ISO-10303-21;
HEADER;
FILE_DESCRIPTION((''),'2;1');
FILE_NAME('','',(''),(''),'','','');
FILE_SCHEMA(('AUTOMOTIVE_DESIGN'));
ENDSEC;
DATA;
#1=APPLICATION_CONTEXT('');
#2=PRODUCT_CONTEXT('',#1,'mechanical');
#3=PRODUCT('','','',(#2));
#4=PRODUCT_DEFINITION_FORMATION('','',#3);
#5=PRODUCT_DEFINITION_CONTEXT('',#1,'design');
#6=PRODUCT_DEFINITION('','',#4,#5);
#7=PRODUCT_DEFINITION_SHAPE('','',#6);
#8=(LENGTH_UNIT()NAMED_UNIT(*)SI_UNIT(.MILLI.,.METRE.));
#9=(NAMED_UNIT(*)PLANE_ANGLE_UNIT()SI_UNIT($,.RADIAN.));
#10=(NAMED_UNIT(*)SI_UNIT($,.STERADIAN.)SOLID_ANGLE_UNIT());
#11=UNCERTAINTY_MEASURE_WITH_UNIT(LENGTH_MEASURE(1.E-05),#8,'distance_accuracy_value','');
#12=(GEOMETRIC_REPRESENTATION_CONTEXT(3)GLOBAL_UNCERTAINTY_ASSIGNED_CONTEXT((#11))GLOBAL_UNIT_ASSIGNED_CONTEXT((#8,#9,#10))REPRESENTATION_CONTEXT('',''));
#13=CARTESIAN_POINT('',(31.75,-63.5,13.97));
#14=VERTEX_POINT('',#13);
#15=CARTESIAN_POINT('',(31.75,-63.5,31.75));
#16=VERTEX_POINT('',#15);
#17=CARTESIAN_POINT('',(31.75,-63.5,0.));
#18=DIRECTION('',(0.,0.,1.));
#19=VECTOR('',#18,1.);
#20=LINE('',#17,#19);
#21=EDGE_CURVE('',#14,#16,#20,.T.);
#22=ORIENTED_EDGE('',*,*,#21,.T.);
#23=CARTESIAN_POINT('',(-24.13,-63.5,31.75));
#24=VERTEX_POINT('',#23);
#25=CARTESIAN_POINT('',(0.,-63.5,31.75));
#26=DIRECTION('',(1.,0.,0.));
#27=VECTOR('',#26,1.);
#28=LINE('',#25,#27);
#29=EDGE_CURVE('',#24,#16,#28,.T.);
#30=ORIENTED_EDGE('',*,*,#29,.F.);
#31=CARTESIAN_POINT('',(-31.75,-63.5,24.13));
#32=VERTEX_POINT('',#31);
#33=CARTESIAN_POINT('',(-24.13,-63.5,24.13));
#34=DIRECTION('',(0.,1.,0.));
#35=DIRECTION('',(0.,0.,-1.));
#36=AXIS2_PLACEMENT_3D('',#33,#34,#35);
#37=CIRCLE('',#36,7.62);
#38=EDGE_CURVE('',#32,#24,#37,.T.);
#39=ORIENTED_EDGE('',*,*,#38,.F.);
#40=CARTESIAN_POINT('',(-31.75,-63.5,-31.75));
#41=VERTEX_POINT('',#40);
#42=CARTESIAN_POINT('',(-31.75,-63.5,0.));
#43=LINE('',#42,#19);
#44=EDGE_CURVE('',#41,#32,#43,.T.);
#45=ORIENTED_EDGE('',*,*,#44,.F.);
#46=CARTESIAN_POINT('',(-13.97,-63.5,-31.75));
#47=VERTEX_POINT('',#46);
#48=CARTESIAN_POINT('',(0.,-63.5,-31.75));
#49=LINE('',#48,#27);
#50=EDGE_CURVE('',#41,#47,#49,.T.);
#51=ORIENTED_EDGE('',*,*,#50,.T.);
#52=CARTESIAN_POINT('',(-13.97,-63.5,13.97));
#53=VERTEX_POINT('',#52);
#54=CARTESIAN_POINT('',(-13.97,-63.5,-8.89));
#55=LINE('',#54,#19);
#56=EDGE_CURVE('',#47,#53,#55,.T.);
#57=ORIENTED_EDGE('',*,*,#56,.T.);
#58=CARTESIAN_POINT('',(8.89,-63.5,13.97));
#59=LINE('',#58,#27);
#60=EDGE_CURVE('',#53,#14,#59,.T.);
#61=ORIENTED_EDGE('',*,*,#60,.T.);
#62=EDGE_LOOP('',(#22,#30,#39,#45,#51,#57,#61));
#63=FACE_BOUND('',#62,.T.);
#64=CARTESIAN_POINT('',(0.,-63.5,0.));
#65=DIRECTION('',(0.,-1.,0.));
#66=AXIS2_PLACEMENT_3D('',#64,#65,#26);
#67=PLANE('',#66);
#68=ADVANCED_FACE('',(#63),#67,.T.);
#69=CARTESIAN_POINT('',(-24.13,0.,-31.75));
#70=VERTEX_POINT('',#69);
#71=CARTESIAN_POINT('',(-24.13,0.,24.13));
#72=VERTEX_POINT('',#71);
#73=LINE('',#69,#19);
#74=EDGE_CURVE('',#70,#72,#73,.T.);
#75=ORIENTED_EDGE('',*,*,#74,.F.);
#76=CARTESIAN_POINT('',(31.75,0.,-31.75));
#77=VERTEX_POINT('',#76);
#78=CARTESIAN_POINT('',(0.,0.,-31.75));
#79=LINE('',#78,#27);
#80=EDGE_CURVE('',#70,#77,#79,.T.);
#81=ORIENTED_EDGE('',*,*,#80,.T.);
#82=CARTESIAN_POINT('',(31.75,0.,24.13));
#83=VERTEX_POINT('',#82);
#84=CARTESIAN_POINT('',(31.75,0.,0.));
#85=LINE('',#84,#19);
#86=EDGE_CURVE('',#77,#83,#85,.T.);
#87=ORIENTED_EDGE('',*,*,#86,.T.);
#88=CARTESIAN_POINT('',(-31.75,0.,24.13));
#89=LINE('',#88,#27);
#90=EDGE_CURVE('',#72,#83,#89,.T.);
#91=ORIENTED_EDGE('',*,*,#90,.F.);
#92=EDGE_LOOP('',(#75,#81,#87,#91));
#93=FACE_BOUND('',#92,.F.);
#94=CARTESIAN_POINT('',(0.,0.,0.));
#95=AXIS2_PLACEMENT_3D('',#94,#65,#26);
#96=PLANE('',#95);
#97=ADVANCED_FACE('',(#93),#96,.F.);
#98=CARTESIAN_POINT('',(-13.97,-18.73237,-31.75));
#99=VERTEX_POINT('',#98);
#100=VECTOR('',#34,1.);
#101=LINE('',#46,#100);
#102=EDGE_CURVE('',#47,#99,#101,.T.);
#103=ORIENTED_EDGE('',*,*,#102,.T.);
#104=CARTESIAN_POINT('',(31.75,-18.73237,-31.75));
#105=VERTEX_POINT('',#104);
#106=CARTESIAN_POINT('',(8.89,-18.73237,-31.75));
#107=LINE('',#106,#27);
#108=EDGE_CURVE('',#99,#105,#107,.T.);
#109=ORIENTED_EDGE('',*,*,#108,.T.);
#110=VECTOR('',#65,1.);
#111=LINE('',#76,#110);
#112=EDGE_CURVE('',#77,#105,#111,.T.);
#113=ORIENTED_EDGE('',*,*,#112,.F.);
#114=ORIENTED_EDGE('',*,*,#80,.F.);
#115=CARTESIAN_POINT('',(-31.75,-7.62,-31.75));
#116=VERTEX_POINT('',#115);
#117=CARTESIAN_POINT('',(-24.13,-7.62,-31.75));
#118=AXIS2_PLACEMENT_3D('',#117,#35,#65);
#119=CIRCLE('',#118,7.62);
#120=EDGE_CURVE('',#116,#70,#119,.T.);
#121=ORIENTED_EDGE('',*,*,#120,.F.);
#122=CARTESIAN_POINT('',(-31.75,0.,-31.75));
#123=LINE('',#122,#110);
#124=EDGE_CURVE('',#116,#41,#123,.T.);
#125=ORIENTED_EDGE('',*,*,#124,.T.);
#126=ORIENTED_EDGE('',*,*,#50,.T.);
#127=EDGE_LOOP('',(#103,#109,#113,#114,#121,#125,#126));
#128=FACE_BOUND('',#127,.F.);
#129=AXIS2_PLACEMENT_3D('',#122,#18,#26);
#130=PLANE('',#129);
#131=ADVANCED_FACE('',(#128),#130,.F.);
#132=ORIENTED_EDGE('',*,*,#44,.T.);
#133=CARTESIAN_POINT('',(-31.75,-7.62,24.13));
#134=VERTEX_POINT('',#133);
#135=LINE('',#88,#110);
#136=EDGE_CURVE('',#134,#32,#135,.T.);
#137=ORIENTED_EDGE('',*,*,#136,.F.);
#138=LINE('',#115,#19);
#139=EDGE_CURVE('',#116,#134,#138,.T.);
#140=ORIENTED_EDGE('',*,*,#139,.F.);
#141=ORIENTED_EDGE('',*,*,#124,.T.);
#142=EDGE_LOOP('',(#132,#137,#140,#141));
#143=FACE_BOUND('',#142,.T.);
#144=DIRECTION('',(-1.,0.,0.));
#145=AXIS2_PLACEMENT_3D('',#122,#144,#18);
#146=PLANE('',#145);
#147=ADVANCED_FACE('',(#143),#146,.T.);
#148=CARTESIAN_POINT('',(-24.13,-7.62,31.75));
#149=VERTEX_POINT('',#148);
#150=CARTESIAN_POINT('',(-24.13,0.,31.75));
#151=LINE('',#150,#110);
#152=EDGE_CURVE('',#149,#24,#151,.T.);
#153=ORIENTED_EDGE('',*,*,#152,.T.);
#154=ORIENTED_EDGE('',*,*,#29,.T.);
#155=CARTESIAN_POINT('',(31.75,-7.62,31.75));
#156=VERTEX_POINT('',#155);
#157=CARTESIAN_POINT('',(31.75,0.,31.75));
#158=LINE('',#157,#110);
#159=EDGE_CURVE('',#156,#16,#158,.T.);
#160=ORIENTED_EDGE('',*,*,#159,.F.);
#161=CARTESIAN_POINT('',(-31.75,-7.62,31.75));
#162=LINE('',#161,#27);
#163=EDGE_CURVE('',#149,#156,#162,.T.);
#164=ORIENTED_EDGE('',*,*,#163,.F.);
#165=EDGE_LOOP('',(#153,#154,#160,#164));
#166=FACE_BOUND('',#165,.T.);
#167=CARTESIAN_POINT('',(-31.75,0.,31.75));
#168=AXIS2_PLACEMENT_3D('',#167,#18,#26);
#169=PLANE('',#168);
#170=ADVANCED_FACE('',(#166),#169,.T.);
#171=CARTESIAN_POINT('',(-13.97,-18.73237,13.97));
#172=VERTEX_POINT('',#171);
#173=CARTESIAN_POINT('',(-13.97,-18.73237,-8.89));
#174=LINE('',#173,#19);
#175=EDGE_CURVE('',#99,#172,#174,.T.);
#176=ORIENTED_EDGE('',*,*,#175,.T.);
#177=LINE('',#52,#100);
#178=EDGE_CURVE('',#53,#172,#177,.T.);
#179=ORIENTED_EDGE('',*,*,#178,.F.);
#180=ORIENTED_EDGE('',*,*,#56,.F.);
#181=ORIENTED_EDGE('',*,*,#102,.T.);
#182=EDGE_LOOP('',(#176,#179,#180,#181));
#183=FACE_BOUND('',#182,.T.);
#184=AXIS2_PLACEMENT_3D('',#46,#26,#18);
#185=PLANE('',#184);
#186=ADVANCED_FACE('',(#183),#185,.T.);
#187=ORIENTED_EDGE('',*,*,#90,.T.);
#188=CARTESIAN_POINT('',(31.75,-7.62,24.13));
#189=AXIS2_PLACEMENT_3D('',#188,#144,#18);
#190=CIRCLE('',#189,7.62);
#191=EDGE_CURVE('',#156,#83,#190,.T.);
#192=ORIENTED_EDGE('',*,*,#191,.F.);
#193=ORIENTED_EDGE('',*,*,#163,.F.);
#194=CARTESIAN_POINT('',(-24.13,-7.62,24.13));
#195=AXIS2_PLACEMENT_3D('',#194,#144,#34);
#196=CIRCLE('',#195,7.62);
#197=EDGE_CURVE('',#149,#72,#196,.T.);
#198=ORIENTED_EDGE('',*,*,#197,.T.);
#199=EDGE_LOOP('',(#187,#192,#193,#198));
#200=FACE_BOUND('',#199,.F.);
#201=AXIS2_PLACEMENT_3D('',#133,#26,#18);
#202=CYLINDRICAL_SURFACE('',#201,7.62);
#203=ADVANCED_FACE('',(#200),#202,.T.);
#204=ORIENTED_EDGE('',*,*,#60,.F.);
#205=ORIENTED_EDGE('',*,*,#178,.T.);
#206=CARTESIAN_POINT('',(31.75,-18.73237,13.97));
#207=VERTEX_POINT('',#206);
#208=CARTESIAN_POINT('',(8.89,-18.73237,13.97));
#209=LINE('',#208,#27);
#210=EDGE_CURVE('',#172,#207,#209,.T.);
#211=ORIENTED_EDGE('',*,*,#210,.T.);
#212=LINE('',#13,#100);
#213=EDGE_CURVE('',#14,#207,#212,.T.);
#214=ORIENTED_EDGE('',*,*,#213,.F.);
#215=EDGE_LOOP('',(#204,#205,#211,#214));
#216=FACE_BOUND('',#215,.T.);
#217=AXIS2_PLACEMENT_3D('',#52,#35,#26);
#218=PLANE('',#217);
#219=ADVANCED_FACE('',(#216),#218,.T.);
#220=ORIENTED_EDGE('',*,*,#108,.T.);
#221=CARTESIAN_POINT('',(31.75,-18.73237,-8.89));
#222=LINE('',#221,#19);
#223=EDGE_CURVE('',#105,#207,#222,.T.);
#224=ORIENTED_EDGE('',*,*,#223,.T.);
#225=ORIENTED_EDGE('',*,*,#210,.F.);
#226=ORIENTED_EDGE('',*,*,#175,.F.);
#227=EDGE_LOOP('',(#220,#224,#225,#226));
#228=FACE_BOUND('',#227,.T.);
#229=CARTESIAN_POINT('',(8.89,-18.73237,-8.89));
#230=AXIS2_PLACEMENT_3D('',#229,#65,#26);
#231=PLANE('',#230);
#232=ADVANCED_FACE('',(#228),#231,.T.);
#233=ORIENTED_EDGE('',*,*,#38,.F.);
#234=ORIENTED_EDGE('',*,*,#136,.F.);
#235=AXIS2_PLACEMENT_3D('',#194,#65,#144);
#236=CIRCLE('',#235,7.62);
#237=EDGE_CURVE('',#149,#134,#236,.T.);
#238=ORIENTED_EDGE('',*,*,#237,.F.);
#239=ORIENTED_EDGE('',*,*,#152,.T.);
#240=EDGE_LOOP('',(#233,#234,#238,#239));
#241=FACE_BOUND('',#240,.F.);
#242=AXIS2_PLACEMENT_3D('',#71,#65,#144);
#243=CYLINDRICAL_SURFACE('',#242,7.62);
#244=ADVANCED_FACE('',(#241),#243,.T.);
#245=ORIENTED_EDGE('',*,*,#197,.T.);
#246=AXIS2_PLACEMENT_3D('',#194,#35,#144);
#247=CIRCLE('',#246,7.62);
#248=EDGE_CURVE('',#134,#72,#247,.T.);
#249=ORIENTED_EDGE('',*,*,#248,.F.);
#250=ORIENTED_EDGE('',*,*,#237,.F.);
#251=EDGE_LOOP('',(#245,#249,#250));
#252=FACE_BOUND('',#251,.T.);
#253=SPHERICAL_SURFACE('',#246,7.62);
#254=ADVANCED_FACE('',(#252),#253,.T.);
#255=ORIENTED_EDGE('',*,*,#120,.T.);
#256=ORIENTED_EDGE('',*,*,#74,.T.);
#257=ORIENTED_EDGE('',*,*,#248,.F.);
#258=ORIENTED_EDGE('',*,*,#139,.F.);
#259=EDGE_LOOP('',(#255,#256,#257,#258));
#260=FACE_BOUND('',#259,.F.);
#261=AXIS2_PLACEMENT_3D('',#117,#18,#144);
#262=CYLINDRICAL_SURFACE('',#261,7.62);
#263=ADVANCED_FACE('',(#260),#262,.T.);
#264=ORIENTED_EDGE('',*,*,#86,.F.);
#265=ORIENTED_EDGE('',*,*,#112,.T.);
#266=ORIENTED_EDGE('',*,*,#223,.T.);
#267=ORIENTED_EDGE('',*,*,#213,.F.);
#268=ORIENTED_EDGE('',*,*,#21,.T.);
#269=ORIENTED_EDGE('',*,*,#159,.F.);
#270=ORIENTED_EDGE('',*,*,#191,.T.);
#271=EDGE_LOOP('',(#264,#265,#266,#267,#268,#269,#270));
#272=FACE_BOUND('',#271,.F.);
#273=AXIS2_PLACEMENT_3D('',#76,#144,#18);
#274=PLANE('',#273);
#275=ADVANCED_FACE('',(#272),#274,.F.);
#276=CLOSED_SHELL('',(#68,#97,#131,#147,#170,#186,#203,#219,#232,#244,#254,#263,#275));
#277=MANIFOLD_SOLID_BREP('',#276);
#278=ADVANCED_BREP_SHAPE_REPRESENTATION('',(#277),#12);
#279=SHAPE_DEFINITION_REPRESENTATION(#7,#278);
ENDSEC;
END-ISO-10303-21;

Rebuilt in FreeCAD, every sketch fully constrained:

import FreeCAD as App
import Part
import Sketcher
Q = App.Units.Quantity


def edges_at(feature, points):
    """Names of the edges that pass closest to the given points."""
    edges = feature.Shape.Edges
    near = lambda p: min(range(len(edges)), key=lambda i: edges[i].distToShape(Part.Vertex(*p))[0])
    return sorted({f"Edge{near(p) + 1}" for p in points})

doc = App.newDocument("Part")
body = doc.addObject("PartDesign::Body", "Body")

# Sketch on XZ plane
sketch1 = body.newObject("Sketcher::SketchObject", "Sketch")
sketch1.AttachmentSupport = (doc.getObject("XZ_Plane"), [""])
sketch1.MapMode = "FlatFace"
sketch1.addGeometry(Part.LineSegment(App.Vector(-31.75, 31.75, 0), App.Vector(-31.75, -31.75, 0)), False)
sketch1.addGeometry(Part.LineSegment(App.Vector(-31.75, -31.75, 0), App.Vector(31.75, -31.75, 0)), False)
sketch1.addGeometry(Part.LineSegment(App.Vector(31.75, -31.75, 0), App.Vector(31.75, 31.75, 0)), False)
sketch1.addGeometry(Part.LineSegment(App.Vector(31.75, 31.75, 0), App.Vector(-31.75, 31.75, 0)), False)
sketch1.addConstraint(Sketcher.Constraint("Coincident", 0, 2, 1, 1))
sketch1.addConstraint(Sketcher.Constraint("Coincident", 1, 2, 2, 1))
sketch1.addConstraint(Sketcher.Constraint("Coincident", 2, 2, 3, 1))
sketch1.addConstraint(Sketcher.Constraint("Coincident", 3, 2, 0, 1))
sketch1.addConstraint(Sketcher.Constraint("Vertical", 0))
sketch1.addConstraint(Sketcher.Constraint("Horizontal", 1))
sketch1.addConstraint(Sketcher.Constraint("Vertical", 2))
sketch1.addConstraint(Sketcher.Constraint("Horizontal", 3))
sketch1.addConstraint(Sketcher.Constraint("Symmetric", 0, 2, 2, 2, -1, 1))
sketch1.addConstraint(Sketcher.Constraint("Equal", 3, 0))
sketch1.addConstraint(Sketcher.Constraint("DistanceX", 1, 1, 1, 2, Q("2.5 in")))
pad1 = body.newObject("PartDesign::Pad", "Pad")
pad1.Profile = sketch1
pad1.Length = Q("2.5 in")

# Sketch on XZ plane
sketch2 = body.newObject("Sketcher::SketchObject", "Sketch001")
sketch2.AttachmentSupport = (doc.getObject("XZ_Plane"), [""])
sketch2.MapMode = "FlatFace"
sketch2.AttachmentOffset = App.Placement(App.Vector(0, 0, 2.5 * 25.4), App.Rotation())
sketch2.addGeometry(Part.LineSegment(App.Vector(-13.97, 13.97, 0), App.Vector(-13.97, -31.75, 0)), False)
sketch2.addGeometry(Part.LineSegment(App.Vector(-13.97, -31.75, 0), App.Vector(31.75, -31.75, 0)), False)
sketch2.addGeometry(Part.LineSegment(App.Vector(31.75, -31.75, 0), App.Vector(31.75, 13.97, 0)), False)
sketch2.addGeometry(Part.LineSegment(App.Vector(31.75, 13.97, 0), App.Vector(-13.97, 13.97, 0)), False)
sketch2.addConstraint(Sketcher.Constraint("Coincident", 0, 2, 1, 1))
sketch2.addConstraint(Sketcher.Constraint("Coincident", 1, 2, 2, 1))
sketch2.addConstraint(Sketcher.Constraint("Coincident", 2, 2, 3, 1))
sketch2.addConstraint(Sketcher.Constraint("Coincident", 3, 2, 0, 1))
sketch2.addConstraint(Sketcher.Constraint("Vertical", 0))
sketch2.addConstraint(Sketcher.Constraint("Horizontal", 1))
sketch2.addConstraint(Sketcher.Constraint("Vertical", 2))
sketch2.addConstraint(Sketcher.Constraint("Horizontal", 3))
sketch2.addConstraint(Sketcher.Constraint("Equal", 3, 0))
sketch2.addConstraint(Sketcher.Constraint("DistanceX", 1, 1, 1, 2, Q("1.8 in")))
sketch2.addConstraint(Sketcher.Constraint("DistanceX", 0, 2, -1, 1, Q("0.55 in")))
sketch2.addConstraint(Sketcher.Constraint("DistanceY", 0, 2, -1, 1, Q("1.25 in")))
pocket1 = body.newObject("PartDesign::Pocket", "Pocket")
pocket1.Profile = sketch2
pocket1.Length = 44.76763
doc.recompute()

fillet = body.newObject("PartDesign::Fillet", "Fillet")
fillet.Base = (pocket1, edges_at(pocket1, [(-31.75, 0, 0), (-31.75, -31.75, 31.75), (0, 0, 31.75)]))
fillet.Radius = Q("0.3 in")

doc.recompute()
